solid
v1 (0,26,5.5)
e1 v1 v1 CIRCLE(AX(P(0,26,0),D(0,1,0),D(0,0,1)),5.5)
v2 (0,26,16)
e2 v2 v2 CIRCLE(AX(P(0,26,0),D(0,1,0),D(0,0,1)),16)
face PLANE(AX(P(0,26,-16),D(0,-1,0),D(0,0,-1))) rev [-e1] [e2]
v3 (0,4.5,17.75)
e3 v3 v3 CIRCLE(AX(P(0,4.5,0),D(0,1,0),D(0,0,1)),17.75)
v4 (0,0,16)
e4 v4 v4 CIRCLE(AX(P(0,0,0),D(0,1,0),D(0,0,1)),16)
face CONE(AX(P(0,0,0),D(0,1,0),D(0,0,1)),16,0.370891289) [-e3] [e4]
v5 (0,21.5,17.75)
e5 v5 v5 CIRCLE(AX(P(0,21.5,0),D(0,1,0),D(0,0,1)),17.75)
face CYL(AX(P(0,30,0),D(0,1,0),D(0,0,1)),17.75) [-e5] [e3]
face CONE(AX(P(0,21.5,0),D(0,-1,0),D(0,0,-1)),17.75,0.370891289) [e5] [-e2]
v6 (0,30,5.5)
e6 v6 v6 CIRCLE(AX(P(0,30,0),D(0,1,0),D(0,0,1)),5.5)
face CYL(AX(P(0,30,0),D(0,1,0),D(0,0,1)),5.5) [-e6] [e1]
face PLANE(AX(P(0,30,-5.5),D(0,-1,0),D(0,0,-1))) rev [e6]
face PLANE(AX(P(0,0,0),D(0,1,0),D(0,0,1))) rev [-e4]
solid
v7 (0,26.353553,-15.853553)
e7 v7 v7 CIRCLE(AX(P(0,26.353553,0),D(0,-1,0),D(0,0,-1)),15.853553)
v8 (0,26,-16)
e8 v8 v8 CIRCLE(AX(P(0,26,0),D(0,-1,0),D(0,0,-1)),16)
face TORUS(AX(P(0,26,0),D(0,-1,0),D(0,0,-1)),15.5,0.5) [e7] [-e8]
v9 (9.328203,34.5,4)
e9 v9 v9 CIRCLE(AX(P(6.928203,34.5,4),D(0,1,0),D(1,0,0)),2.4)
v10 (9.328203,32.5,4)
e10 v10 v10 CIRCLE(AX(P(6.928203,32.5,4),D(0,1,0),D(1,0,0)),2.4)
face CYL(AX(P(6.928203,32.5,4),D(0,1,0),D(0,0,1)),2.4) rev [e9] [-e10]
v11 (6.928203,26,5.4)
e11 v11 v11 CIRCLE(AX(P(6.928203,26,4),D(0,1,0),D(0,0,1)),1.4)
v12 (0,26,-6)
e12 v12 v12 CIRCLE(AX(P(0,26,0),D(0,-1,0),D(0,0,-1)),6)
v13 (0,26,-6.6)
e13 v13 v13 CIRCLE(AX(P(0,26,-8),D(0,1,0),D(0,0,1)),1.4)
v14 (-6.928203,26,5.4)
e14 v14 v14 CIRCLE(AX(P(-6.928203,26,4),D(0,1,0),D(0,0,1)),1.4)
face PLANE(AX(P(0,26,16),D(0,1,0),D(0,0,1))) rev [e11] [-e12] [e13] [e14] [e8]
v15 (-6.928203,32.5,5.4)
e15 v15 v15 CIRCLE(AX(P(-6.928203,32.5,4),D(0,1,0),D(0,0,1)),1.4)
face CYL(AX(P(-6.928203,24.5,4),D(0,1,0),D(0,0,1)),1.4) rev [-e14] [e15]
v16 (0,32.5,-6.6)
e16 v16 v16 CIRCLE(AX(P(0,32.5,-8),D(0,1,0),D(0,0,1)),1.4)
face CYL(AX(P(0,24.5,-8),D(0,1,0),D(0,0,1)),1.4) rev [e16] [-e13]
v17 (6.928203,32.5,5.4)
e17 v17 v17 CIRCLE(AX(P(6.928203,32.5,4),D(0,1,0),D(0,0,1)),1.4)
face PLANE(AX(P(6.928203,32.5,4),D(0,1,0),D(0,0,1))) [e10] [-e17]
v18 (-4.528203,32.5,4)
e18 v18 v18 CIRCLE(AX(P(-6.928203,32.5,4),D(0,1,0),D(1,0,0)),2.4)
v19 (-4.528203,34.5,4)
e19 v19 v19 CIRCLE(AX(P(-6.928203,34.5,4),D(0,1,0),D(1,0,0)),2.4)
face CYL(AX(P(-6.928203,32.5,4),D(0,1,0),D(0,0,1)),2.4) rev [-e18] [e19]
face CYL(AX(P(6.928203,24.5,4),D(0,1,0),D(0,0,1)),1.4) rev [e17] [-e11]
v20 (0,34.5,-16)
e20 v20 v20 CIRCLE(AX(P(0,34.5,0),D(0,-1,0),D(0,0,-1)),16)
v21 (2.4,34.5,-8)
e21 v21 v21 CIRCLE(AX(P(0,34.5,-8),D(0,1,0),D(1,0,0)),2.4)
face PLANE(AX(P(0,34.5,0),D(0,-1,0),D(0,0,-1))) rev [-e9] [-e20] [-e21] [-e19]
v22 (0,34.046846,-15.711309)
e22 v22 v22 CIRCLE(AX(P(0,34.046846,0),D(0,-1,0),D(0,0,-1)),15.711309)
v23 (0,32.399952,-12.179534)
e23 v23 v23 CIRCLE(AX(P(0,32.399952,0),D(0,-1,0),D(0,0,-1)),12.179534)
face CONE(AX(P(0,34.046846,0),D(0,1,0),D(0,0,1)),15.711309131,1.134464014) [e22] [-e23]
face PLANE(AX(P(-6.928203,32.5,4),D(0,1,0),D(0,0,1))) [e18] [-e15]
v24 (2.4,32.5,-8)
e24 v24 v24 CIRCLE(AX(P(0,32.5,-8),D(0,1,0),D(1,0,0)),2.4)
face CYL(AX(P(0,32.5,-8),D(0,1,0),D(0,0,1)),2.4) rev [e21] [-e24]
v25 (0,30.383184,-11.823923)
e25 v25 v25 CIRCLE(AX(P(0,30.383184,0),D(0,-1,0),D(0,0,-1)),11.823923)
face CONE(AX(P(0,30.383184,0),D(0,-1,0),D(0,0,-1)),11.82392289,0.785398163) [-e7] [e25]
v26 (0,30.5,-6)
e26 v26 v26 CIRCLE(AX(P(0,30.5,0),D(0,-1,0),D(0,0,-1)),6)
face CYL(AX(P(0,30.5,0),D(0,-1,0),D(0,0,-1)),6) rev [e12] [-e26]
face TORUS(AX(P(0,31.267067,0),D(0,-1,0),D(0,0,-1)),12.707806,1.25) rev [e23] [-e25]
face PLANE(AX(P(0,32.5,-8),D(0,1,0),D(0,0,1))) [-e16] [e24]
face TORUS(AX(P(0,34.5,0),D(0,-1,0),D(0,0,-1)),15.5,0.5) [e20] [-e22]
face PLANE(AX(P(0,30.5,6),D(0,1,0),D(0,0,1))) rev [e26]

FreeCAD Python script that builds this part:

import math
import FreeCAD as App
import Part
import Sketcher

V = App.Vector
Q = App.Units.Quantity

doc = App.newDocument("Part")
params = doc.addObject("Spreadsheet::Sheet", "Params")
for row, (alias, value) in enumerate([
    ("sketch1_width", "17 mm"),
    ("sketch1_width2", "4 mm"),
    ("sketch1_width3", "30 mm"),
    ("sketch1_height", "16 mm"),
    ("sketch1_height2", "10.5 mm"),
    ("revolution_angle", "360 deg"),
    ("sketch2_radius", "0.5 mm"),
    ("sketch2_width", "4 mm"),
    ("sketch2_height", "10 mm"),
    ("sketch2_height2", "6 mm"),
    ("sketch2_radius2", "1.25 mm"),
    ("revolution2_angle", "360 deg"),
    ("sketch3_diameter", "2.8 mm"),
    ("pocket1_length", "10 mm"),
    ("sketch4_diameter", "4.8 mm"),
    ("sketch4_diameter2", "2.8 mm"),
    ("pocket2_length", "2 mm"),
], start=1):
    params.set(f"A{row}", alias)
    params.set(f"B{row}", "=" + value)
    params.setAlias(f"B{row}", alias)

body = doc.addObject("PartDesign::Body", "Body")

# Sketch on YZ plane
sketch1 = body.newObject("Sketcher::SketchObject", "Sketch")
sketch1.AttachmentSupport = (doc.getObject("YZ_Plane"), [""])
sketch1.MapMode = "FlatFace"
sketch1.addGeometry([
    Part.LineSegment(V(0, 0, 0), V(0, -16, 0)),  # 0
    Part.LineSegment(V(0, -16, 0), V(4.5, -17.8, 0)),  # 1
    Part.LineSegment(V(4.5, -17.8, 0), V(21.5, -17.8, 0)),  # 2
    Part.LineSegment(V(21.5, -17.8, 0), V(26, -16, 0)),  # 3
    Part.LineSegment(V(26, -16, 0), V(26, -5.5, 0)),  # 4
    Part.LineSegment(V(26, -5.5, 0), V(30, -5.5, 0)),  # 5
    Part.LineSegment(V(30, -5.5, 0), V(30, 0, 0)),  # 6
    Part.LineSegment(V(30, 0, 0), V(0, 0, 0)),  # 7
], False)
sketch1.addConstraint([
    Sketcher.Constraint("Coincident", 0, 2, 1, 1),
    Sketcher.Constraint("Coincident", 1, 2, 2, 1),
    Sketcher.Constraint("Coincident", 2, 2, 3, 1),
    Sketcher.Constraint("Coincident", 3, 2, 4, 1),
    Sketcher.Constraint("Coincident", 4, 2, 5, 1),
    Sketcher.Constraint("Coincident", 5, 2, 6, 1),
    Sketcher.Constraint("Coincident", 6, 2, 7, 1),
    Sketcher.Constraint("Coincident", 7, 2, 0, 1),
    Sketcher.Constraint("Vertical", 0),
    Sketcher.Constraint("Horizontal", 2),
    Sketcher.Constraint("Vertical", 4),
    Sketcher.Constraint("Horizontal", 5),
    Sketcher.Constraint("Vertical", 6),
    Sketcher.Constraint("Horizontal", 7),
    Sketcher.Constraint("Coincident", 7, 2, -1, 1),
    Sketcher.Constraint("Horizontal", 0, 2, 3, 2),
    Sketcher.Constraint("Equal", 1, 3),
    Sketcher.Constraint("DistanceX", 2, 1, 2, 2, 17.0),
    Sketcher.Constraint("DistanceX", 5, 1, 5, 2, 4.0),
    Sketcher.Constraint("DistanceX", 7, 2, 7, 1, 30.0),
    Sketcher.Constraint("DistanceY", 0, 2, 0, 1, 16.0),
    Sketcher.Constraint("DistanceY", 4, 1, 4, 2, 10.5),
    Sketcher.Constraint("DistanceY", 1, 2, -1, 1, 17.75),
])
sketch1.setExpression("Constraints[17]", "Params.sketch1_width")
sketch1.setExpression("Constraints[18]", "Params.sketch1_width2")
sketch1.setExpression("Constraints[19]", "Params.sketch1_width3")
sketch1.setExpression("Constraints[20]", "Params.sketch1_height")
sketch1.setExpression("Constraints[21]", "Params.sketch1_height2")
revolution = body.newObject("PartDesign::Revolution", "Revolution")
revolution.Profile = sketch1
revolution.ReferenceAxis = (sketch1, ["H_Axis"])
revolution.setExpression("Angle", "Params.revolution_angle")
body2 = doc.addObject("PartDesign::Body", "Body001")

# Sketch on YZ plane
sketch2 = body2.newObject("Sketcher::SketchObject", "Sketch001")
sketch2.AttachmentSupport = (doc.getObject("YZ_Plane001"), [""])
sketch2.MapMode = "FlatFace"
sketch2.addGeometry([
    Part.LineSegment(V(26, 16, 0), V(26, 6, 0)),  # 0
    Part.LineSegment(V(26, 6, 0), V(30.5, 6, 0)),  # 1
    Part.LineSegment(V(30.5, 6, 0), V(30.5, 0, 0)),  # 2
    Part.LineSegment(V(30.5, 0, 0), V(34.5, 0, 0)),  # 3
    Part.LineSegment(V(34.5, 0, 0), V(34.5, 16, 0)),  # 4
    Part.ArcOfCircle(Part.Circle(V(34.5, 15.5, 0), V(0, 0, 1), 0.5), math.radians(90), math.radians(155)),  # 5
    Part.LineSegment(V(34.05, 15.71, 0), V(32.4, 12.18, 0)),  # 6
    Part.ArcOfCircle(Part.Circle(V(31.27, 12.71, 0), V(0, 0, 1), 1.25), math.radians(-135), math.radians(-25)),  # 7
    Part.LineSegment(V(30.38, 11.82, 0), V(26.35, 15.85, 0)),  # 8
    Part.ArcOfCircle(Part.Circle(V(26, 15.5, 0), V(0, 0, 1), 0.5), math.radians(45), math.radians(90)),  # 9
], False)
sketch2.addConstraint([
    Sketcher.Constraint("Coincident", 0, 2, 1, 1),
    Sketcher.Constraint("Coincident", 1, 2, 2, 1),
    Sketcher.Constraint("Coincident", 2, 2, 3, 1),
    Sketcher.Constraint("Coincident", 3, 2, 4, 1),
    Sketcher.Constraint("Coincident", 4, 2, 5, 1),
    Sketcher.Constraint("Tangent", 5, 2, 6, 1),
    Sketcher.Constraint("Tangent", 6, 2, 7, 2),
    Sketcher.Constraint("Tangent", 7, 1, 8, 1),
    Sketcher.Constraint("Tangent", 8, 2, 9, 1),
    Sketcher.Constraint("Coincident", 9, 2, 0, 1),
    Sketcher.Constraint("Vertical", 0),
    Sketcher.Constraint("Horizontal", 1),
    Sketcher.Constraint("Vertical", 2),
    Sketcher.Constraint("Horizontal", 3),
    Sketcher.Constraint("Vertical", 4),
    Sketcher.Constraint("Equal", 5, 9),
    Sketcher.Constraint("PointOnObject", 2, 2, -1),
    Sketcher.Constraint("Horizontal", 5, 3, 9, 3),
    Sketcher.Constraint("Vertical", 9, 3, 0, 2),
    Sketcher.Constraint("Vertical", 5, 3, 3, 2),
    Sketcher.Constraint("Radius", 5, 0.5),
    Sketcher.Constraint("DistanceX", 3, 1, 3, 2, 4.0),
    Sketcher.Constraint("DistanceY", 0, 2, 0, 1, 10.0),
    Sketcher.Constraint("DistanceY", 2, 2, 2, 1, 6.0),
    Sketcher.Constraint("Angle", 6, Q("-115 deg")),
    Sketcher.Constraint("Angle", 8, Q("135 deg")),
    Sketcher.Constraint("Radius", 7, 1.25),
    Sketcher.Constraint("DistanceX", 1, 1, 1, 2, 4.5),
    Sketcher.Constraint("DistanceX", -1, 1, 9, 3, 26.0),
])
sketch2.setExpression("Constraints[20]", "Params.sketch2_radius")
sketch2.setExpression("Constraints[21]", "Params.sketch2_width")
sketch2.setExpression("Constraints[22]", "Params.sketch2_height")
sketch2.setExpression("Constraints[23]", "Params.sketch2_height2")
sketch2.setExpression("Constraints[26]", "Params.sketch2_radius2")
revolution2 = body2.newObject("PartDesign::Revolution", "Revolution001")
revolution2.Profile = sketch2
revolution2.ReferenceAxis = (sketch2, ["H_Axis"])
revolution2.setExpression("Angle", "Params.revolution2_angle")

# Sketch on XZ plane
sketch3 = body2.newObject("Sketcher::SketchObject", "Sketch002")
sketch3.AttachmentSupport = (doc.getObject("XZ_Plane001"), [""])
sketch3.MapMode = "FlatFace"
sketch3.AttachmentOffset = App.Placement(V(0, 0, -34.5), App.Rotation())
sketch3.addGeometry([
    Part.Circle(V(0, -8, 0), V(0, 0, 1), 1.4),
    Part.Circle(V(6.9, 4, 0), V(0, 0, 1), 1.4),
    Part.Circle(V(-6.9, 4, 0), V(0, 0, 1), 1.4),
], False)
sketch3.addConstraint([
    Sketcher.Constraint("Equal", 0, 1),
    Sketcher.Constraint("Equal", 1, 2),
    Sketcher.Constraint("Symmetric", 1, 3, 2, 3, -2),
    Sketcher.Constraint("PointOnObject", 0, 3, -2),
    Sketcher.Constraint("Diameter", 0, 2.8),
    Sketcher.Constraint("DistanceY", 0, 3, -1, 1, 8.0),
    Sketcher.Constraint("DistanceY", -1, 1, 1, 3, 4.0),
    Sketcher.Constraint("DistanceX", -1, 1, 1, 3, 6.928203),
])
sketch3.setExpression("Constraints[4]", "Params.sketch3_diameter")
pocket1 = body2.newObject("PartDesign::Pocket", "Pocket")
pocket1.Profile = sketch3
pocket1.setExpression("Length", "Params.pocket1_length")
pocket1.Reversed = True

# Sketch on XZ plane
sketch4 = body2.newObject("Sketcher::SketchObject", "Sketch003")
sketch4.AttachmentSupport = (doc.getObject("XZ_Plane001"), [""])
sketch4.MapMode = "FlatFace"
sketch4.AttachmentOffset = App.Placement(V(0, 0, -34.5), App.Rotation())
sketch4.addGeometry([
    Part.Circle(V(0, -8, 0), V(0, 0, 1), 2.4),  # 0
    Part.Circle(V(0, -8, 0), V(0, 0, 1), 1.4),  # 1
    Part.Circle(V(6.9, 4, 0), V(0, 0, 1), 2.4),  # 2
    Part.Circle(V(6.9, 4, 0), V(0, 0, 1), 1.4),  # 3
    Part.Circle(V(-6.9, 4, 0), V(0, 0, 1), 2.4),  # 4
    Part.Circle(V(-6.9, 4, 0), V(0, 0, 1), 1.4),  # 5
], False)
sketch4.addConstraint([
    Sketcher.Constraint("Coincident", 1, 3, 0, 3),
    Sketcher.Constraint("Coincident", 3, 3, 2, 3),
    Sketcher.Constraint("Coincident", 5, 3, 4, 3),
    Sketcher.Constraint("Equal", 0, 2),
    Sketcher.Constraint("Equal", 1, 3),
    Sketcher.Constraint("Equal", 2, 4),
    Sketcher.Constraint("Equal", 3, 5),
    Sketcher.Constraint("Symmetric", 2, 3, 4, 3, -2),
    Sketcher.Constraint("PointOnObject", 0, 3, -2),
    Sketcher.Constraint("Diameter", 0, 4.8),
    Sketcher.Constraint("Diameter", 1, 2.8),
    Sketcher.Constraint("DistanceY", 0, 3, -1, 1, 8.0),
    Sketcher.Constraint("DistanceY", -1, 1, 2, 3, 4.0),
    Sketcher.Constraint("DistanceX", -1, 1, 2, 3, 6.928203),
])
sketch4.setExpression("Constraints[9]", "Params.sketch4_diameter")
sketch4.setExpression("Constraints[10]", "Params.sketch4_diameter2")
pocket2 = body2.newObject("PartDesign::Pocket", "Pocket001")
pocket2.Profile = sketch4
pocket2.setExpression("Length", "Params.pocket2_length")
pocket2.Reversed = True

doc.recompute()
